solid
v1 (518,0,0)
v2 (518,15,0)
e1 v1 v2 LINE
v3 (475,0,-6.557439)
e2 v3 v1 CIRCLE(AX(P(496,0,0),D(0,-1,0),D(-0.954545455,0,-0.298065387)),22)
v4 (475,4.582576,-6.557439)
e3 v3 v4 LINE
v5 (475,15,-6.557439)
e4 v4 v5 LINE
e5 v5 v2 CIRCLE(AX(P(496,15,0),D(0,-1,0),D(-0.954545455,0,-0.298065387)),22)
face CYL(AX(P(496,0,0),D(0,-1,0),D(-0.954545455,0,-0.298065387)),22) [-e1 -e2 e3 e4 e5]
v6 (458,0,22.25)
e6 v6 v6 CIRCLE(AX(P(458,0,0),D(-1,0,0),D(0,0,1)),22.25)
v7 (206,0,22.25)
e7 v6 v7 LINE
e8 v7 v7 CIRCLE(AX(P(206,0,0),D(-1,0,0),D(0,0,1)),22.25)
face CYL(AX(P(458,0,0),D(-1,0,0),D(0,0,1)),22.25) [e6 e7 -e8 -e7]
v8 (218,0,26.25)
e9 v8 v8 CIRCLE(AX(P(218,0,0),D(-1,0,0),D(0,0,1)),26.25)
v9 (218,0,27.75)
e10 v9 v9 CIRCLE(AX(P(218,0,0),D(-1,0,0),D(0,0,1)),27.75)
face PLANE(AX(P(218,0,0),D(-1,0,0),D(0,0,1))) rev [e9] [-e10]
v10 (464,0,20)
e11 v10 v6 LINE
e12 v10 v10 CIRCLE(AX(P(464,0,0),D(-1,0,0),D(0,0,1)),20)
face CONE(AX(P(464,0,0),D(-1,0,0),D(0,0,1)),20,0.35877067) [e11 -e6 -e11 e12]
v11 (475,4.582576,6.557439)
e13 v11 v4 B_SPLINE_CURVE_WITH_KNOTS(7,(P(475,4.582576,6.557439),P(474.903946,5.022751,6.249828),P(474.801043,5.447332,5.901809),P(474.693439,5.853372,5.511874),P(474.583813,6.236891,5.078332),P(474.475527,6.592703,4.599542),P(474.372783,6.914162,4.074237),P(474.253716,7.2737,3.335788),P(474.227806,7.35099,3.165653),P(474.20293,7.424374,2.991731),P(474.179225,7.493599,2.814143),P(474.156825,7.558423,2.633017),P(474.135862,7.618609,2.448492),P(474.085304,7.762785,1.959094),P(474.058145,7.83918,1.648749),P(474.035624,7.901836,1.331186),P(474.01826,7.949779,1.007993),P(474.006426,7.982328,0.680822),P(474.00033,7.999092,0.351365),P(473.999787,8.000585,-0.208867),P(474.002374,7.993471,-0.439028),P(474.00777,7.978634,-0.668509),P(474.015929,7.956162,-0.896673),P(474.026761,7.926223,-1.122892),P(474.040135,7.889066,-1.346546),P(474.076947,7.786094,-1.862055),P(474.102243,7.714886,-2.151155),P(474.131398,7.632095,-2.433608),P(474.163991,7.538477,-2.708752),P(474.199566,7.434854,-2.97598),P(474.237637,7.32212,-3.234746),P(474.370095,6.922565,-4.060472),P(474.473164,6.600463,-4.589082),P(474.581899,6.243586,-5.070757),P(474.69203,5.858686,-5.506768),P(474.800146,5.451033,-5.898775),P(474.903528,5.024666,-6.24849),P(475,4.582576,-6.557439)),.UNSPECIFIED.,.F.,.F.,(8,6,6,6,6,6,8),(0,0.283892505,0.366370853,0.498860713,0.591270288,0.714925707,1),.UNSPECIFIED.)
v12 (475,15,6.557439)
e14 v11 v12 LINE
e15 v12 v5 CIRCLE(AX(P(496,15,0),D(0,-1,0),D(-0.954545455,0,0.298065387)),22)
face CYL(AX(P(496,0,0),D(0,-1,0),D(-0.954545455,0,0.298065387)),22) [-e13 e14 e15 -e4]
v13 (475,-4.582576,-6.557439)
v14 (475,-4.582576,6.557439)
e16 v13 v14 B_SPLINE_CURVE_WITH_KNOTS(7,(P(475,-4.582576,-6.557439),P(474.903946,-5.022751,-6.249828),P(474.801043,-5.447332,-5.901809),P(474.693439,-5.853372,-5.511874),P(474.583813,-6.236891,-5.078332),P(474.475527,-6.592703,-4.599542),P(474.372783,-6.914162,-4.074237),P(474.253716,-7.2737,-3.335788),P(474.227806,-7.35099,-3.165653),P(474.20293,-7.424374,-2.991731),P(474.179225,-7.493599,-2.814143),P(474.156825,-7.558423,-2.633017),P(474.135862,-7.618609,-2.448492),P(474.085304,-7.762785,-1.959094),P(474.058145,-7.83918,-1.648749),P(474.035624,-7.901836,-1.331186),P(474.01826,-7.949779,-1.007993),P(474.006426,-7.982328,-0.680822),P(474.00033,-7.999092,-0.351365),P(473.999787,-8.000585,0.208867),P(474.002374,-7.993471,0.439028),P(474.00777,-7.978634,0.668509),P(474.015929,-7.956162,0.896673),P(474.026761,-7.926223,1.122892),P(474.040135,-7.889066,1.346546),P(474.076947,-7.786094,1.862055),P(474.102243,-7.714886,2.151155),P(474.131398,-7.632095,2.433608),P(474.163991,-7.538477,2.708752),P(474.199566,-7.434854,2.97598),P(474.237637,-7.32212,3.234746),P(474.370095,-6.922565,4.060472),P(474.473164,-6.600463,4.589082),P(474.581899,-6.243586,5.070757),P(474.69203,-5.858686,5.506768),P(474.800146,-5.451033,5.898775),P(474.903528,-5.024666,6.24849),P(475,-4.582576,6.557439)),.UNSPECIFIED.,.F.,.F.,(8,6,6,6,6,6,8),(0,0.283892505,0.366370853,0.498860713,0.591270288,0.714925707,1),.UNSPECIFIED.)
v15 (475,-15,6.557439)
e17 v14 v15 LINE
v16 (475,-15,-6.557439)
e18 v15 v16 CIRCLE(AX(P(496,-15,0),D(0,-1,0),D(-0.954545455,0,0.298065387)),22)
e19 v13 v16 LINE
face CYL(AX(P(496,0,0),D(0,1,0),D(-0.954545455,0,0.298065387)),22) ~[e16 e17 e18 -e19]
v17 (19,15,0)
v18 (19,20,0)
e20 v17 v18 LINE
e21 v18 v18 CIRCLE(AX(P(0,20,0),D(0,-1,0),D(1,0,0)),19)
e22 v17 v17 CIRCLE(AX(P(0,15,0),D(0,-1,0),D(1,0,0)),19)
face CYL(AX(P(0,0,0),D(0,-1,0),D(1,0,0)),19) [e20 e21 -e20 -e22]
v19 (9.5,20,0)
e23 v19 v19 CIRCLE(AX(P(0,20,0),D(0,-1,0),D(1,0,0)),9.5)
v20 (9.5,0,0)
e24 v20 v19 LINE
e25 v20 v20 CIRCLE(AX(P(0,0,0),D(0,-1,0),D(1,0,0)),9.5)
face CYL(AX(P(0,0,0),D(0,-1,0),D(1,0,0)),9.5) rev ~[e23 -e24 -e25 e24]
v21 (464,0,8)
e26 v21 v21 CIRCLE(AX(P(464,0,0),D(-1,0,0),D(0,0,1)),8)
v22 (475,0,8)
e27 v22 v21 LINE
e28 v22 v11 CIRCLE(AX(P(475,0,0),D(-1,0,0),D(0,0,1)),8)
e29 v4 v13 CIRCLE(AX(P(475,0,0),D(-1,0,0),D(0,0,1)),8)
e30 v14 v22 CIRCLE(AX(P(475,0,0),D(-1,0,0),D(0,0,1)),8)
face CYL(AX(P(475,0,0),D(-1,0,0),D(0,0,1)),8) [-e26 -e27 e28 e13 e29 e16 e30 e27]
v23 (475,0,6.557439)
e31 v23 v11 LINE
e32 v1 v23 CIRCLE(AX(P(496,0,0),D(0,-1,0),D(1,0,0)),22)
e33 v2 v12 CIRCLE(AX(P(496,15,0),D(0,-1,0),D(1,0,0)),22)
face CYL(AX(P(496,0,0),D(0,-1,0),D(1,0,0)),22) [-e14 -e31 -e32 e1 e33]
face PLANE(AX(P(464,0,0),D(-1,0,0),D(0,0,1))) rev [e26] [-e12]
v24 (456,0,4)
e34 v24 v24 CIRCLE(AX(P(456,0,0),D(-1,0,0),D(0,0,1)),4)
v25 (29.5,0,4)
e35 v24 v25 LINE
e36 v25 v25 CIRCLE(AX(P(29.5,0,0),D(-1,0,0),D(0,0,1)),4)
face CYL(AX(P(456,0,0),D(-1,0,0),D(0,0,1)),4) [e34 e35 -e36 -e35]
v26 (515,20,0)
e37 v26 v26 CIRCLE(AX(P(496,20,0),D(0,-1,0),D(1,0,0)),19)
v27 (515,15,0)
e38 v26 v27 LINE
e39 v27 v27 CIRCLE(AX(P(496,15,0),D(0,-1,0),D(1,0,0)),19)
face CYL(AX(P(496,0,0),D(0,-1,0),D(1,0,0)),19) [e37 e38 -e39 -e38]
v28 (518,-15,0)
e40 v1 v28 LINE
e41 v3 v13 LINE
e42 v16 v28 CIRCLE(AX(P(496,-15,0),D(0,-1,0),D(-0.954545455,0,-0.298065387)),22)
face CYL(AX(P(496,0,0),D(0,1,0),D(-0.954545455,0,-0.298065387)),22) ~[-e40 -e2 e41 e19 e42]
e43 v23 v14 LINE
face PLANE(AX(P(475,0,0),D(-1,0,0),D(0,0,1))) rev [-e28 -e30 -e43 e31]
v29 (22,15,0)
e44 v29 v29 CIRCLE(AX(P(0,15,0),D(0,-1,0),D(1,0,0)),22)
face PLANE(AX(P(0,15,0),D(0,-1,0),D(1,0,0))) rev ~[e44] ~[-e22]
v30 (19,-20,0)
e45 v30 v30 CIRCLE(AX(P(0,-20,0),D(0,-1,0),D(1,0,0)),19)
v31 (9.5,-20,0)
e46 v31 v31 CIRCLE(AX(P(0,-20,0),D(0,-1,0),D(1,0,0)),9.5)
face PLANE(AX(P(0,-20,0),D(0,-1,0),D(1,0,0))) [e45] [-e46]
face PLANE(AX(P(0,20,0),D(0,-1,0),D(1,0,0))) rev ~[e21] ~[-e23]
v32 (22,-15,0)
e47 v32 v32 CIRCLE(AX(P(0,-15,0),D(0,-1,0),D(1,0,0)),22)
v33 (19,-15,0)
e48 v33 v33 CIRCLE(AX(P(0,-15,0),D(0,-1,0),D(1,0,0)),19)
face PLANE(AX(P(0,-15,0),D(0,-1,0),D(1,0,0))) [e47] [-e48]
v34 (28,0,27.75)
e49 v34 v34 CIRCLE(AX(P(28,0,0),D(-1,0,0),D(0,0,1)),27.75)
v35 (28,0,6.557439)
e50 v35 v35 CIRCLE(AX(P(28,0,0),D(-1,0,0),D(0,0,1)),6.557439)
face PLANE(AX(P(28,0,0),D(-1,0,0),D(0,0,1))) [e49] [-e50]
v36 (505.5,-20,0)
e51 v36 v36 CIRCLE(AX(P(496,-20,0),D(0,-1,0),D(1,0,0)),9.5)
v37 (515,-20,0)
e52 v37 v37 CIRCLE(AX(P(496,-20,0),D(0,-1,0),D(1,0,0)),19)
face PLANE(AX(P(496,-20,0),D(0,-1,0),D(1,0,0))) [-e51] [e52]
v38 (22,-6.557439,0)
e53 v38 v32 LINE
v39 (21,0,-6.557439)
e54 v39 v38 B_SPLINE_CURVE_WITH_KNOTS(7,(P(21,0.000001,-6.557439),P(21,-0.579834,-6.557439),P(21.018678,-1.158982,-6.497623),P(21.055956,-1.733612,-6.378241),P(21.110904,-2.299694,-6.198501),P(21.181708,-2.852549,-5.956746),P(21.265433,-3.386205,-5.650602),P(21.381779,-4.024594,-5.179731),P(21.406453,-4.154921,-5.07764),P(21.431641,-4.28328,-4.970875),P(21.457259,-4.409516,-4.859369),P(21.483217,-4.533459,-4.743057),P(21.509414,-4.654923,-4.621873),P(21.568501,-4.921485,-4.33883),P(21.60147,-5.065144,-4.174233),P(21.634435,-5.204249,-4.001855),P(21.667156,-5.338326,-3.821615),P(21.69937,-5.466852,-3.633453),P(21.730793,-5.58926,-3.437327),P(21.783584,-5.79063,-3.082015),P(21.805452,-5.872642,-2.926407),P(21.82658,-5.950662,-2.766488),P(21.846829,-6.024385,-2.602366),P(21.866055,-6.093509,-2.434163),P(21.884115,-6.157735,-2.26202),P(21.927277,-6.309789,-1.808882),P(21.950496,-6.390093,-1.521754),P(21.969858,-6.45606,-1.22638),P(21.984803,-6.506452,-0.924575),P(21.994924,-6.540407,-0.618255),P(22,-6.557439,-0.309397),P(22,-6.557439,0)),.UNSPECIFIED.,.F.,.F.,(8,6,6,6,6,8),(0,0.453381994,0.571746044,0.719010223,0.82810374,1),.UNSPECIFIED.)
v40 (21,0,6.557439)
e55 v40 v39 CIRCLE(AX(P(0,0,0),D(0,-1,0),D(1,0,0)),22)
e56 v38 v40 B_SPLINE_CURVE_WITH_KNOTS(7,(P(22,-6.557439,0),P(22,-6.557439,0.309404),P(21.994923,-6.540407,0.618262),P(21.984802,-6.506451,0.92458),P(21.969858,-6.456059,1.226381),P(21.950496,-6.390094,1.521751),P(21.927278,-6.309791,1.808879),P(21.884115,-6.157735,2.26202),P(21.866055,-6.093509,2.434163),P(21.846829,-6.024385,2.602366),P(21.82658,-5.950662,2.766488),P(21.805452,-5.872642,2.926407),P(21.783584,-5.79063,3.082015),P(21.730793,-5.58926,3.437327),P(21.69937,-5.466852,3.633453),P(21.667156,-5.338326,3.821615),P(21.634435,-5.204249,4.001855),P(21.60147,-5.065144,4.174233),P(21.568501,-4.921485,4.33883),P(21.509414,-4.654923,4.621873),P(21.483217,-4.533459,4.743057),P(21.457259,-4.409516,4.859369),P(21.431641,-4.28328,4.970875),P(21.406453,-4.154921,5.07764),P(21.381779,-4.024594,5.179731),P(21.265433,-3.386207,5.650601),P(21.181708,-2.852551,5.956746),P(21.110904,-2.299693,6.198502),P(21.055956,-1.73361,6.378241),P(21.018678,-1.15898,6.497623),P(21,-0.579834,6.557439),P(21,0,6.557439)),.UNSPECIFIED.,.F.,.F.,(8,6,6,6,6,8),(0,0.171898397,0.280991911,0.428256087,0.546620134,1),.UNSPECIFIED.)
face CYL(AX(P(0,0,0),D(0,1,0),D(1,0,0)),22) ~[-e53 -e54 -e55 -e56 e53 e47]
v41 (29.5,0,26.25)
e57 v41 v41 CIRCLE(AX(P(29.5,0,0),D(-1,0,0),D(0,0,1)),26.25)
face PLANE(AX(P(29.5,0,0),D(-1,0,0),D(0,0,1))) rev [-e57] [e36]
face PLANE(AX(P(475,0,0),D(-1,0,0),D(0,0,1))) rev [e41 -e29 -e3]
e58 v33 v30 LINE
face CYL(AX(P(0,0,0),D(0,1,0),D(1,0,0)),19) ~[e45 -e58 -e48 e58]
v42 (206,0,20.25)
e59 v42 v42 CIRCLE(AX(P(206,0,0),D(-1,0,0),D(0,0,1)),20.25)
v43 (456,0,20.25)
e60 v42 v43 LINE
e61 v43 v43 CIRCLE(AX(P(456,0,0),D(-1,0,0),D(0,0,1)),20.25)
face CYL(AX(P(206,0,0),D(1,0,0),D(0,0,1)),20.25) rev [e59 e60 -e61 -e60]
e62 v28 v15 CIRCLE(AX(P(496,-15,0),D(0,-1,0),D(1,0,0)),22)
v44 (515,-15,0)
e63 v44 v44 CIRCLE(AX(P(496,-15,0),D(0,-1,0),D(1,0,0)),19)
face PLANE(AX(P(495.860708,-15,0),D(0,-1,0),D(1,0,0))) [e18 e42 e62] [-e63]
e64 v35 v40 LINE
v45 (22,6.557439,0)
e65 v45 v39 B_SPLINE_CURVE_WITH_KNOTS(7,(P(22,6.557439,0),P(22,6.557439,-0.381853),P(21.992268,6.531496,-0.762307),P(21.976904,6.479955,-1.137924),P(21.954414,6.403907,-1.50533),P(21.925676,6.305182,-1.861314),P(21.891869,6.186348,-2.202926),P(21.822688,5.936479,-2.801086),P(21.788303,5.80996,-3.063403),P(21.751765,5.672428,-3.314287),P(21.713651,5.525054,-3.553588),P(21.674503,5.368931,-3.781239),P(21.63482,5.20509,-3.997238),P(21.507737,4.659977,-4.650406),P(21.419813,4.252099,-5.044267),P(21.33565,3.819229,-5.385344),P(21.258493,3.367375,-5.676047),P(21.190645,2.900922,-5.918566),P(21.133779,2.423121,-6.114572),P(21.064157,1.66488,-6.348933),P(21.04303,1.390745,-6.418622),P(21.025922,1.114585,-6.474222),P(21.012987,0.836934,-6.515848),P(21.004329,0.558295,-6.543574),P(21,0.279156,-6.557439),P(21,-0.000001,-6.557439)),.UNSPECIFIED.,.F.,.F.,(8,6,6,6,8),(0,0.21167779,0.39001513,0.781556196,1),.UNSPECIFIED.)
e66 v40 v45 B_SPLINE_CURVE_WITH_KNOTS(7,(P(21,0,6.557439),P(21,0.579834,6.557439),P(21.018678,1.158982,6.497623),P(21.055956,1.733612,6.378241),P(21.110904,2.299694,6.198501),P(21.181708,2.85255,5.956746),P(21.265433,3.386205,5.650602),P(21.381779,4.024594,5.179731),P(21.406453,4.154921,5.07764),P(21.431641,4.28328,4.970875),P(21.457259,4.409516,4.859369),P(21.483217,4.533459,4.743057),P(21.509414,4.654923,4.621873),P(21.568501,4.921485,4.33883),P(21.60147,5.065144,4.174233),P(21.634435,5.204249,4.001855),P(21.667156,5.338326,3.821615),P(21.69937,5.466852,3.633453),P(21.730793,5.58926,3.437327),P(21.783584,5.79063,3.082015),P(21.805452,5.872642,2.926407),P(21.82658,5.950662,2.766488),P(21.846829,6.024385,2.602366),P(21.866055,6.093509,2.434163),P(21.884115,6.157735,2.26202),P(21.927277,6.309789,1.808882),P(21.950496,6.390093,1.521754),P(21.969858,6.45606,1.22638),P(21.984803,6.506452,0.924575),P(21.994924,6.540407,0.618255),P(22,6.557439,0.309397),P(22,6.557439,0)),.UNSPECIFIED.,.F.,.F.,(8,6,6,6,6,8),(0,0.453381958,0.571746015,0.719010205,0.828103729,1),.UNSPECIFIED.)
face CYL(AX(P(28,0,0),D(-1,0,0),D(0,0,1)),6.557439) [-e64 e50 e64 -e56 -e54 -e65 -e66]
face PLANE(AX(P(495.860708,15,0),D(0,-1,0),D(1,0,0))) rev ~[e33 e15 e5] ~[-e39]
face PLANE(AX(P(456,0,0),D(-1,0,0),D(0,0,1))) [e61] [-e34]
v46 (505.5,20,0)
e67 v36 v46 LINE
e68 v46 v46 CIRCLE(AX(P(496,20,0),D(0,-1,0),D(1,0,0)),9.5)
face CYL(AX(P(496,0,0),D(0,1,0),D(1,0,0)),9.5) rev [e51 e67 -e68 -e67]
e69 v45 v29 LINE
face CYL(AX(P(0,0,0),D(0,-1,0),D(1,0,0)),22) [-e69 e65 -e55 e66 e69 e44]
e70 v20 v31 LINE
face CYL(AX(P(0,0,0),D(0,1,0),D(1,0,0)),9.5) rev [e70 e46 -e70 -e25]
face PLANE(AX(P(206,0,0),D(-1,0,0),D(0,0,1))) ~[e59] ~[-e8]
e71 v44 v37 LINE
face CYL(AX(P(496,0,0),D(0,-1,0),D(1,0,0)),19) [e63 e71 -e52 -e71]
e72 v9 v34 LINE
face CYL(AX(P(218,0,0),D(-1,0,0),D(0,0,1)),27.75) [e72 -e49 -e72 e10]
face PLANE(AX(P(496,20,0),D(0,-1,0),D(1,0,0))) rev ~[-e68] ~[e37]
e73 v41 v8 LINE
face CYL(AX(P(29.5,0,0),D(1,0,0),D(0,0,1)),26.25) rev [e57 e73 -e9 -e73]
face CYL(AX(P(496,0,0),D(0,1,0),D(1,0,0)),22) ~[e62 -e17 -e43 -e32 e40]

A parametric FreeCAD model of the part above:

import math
import FreeCAD as App
import Part
import Sketcher
Q = App.Units.Quantity

doc = App.newDocument("Part")
body = doc.addObject("PartDesign::Body", "Body")

# Sketch on XZ plane
sketch1 = doc.addObject("Sketcher::SketchObject", "Sketch")
body.addObject(sketch1)
sketch1.AttachmentSupport = (doc.XZ_Plane, [""])
sketch1.MapMode = "FlatFace"
sketch1.addGeometry(Part.LineSegment(App.Vector(29.5, 4, 0), App.Vector(29.5, 26.25, 0)), False)
sketch1.addGeometry(Part.LineSegment(App.Vector(29.5, 26.25, 0), App.Vector(218, 26.25, 0)), False)
sketch1.addGeometry(Part.LineSegment(App.Vector(218, 26.25, 0), App.Vector(218, 27.75, 0)), False)
sketch1.addGeometry(Part.LineSegment(App.Vector(218, 27.75, 0), App.Vector(28, 27.75, 0)), False)
sketch1.addGeometry(Part.LineSegment(App.Vector(28, 27.75, 0), App.Vector(28, 6.557439, 0)), False)
sketch1.addGeometry(Part.LineSegment(App.Vector(28, 6.557439, 0), App.Vector(21, 6.557439, 0)), False)
sketch1.addGeometry(Part.ArcOfCircle(Part.Circle(App.Vector(0, 0, 0), App.Vector(0, 0, 1), 22), math.radians(0), math.radians(17.341443)), False)
sketch1.addGeometry(Part.LineSegment(App.Vector(22, 0, 0), App.Vector(475, 0, 0)), False)
sketch1.addGeometry(Part.LineSegment(App.Vector(475, 0, 0), App.Vector(475, 8, 0)), False)
sketch1.addGeometry(Part.LineSegment(App.Vector(475, 8, 0), App.Vector(464, 8, 0)), False)
sketch1.addGeometry(Part.LineSegment(App.Vector(464, 8, 0), App.Vector(464, 20, 0)), False)
sketch1.addGeometry(Part.LineSegment(App.Vector(464, 20, 0), App.Vector(458, 22.25, 0)), False)
sketch1.addGeometry(Part.LineSegment(App.Vector(458, 22.25, 0), App.Vector(206, 22.25, 0)), False)
sketch1.addGeometry(Part.LineSegment(App.Vector(206, 22.25, 0), App.Vector(206, 20.25, 0)), False)
sketch1.addGeometry(Part.LineSegment(App.Vector(206, 20.25, 0), App.Vector(456, 20.25, 0)), False)
sketch1.addGeometry(Part.LineSegment(App.Vector(456, 20.25, 0), App.Vector(456, 4, 0)), False)
sketch1.addGeometry(Part.LineSegment(App.Vector(456, 4, 0), App.Vector(29.5, 4, 0)), False)
sketch1.addConstraint(Sketcher.Constraint("Coincident", 0, 2, 1, 1))
sketch1.addConstraint(Sketcher.Constraint("Coincident", 1, 2, 2, 1))
sketch1.addConstraint(Sketcher.Constraint("Coincident", 2, 2, 3, 1))
sketch1.addConstraint(Sketcher.Constraint("Coincident", 3, 2, 4, 1))
sketch1.addConstraint(Sketcher.Constraint("Coincident", 4, 2, 5, 1))
sketch1.addConstraint(Sketcher.Constraint("Coincident", 5, 2, 6, 2))
sketch1.addConstraint(Sketcher.Constraint("Coincident", 6, 1, 7, 1))
sketch1.addConstraint(Sketcher.Constraint("Coincident", 7, 2, 8, 1))
sketch1.addConstraint(Sketcher.Constraint("Coincident", 8, 2, 9, 1))
sketch1.addConstraint(Sketcher.Constraint("Coincident", 9, 2, 10, 1))
sketch1.addConstraint(Sketcher.Constraint("Coincident", 10, 2, 11, 1))
sketch1.addConstraint(Sketcher.Constraint("Coincident", 11, 2, 12, 1))
sketch1.addConstraint(Sketcher.Constraint("Coincident", 12, 2, 13, 1))
sketch1.addConstraint(Sketcher.Constraint("Coincident", 13, 2, 14, 1))
sketch1.addConstraint(Sketcher.Constraint("Coincident", 14, 2, 15, 1))
sketch1.addConstraint(Sketcher.Constraint("Coincident", 15, 2, 16, 1))
sketch1.addConstraint(Sketcher.Constraint("Coincident", 16, 2, 0, 1))
sketch1.addConstraint(Sketcher.Constraint("Vertical", 0))
sketch1.addConstraint(Sketcher.Constraint("Horizontal", 1))
sketch1.addConstraint(Sketcher.Constraint("Vertical", 2))
sketch1.addConstraint(Sketcher.Constraint("Horizontal", 3))
sketch1.addConstraint(Sketcher.Constraint("Vertical", 4))
sketch1.addConstraint(Sketcher.Constraint("Horizontal", 5))
sketch1.addConstraint(Sketcher.Constraint("Horizontal", 7))
sketch1.addConstraint(Sketcher.Constraint("Vertical", 8))
sketch1.addConstraint(Sketcher.Constraint("Horizontal", 9))
sketch1.addConstraint(Sketcher.Constraint("Vertical", 10))
sketch1.addConstraint(Sketcher.Constraint("Horizontal", 12))
sketch1.addConstraint(Sketcher.Constraint("Vertical", 13))
sketch1.addConstraint(Sketcher.Constraint("Horizontal", 14))
sketch1.addConstraint(Sketcher.Constraint("Vertical", 15))
sketch1.addConstraint(Sketcher.Constraint("Horizontal", 16))
sketch1.addConstraint(Sketcher.Constraint("Coincident", 6, 3, -1, 1))
sketch1.addConstraint(Sketcher.Constraint("PointOnObject", 6, 1, -1))
sketch1.addConstraint(Sketcher.Constraint("Radius", 6, Q("22 mm")))
sketch1.addConstraint(Sketcher.Constraint("DistanceX", 3, 2, 3, 1, Q("190 mm")))
sketch1.addConstraint(Sketcher.Constraint("DistanceX", 5, 2, 5, 1, Q("7 mm")))
sketch1.addConstraint(Sketcher.Constraint("DistanceX", 7, 1, 7, 2, Q("453 mm")))
sketch1.addConstraint(Sketcher.Constraint("DistanceX", 9, 2, 9, 1, Q("11 mm")))
sketch1.addConstraint(Sketcher.Constraint("DistanceX", 12, 2, 12, 1, Q("252 mm")))
sketch1.addConstraint(Sketcher.Constraint("DistanceX", 14, 1, 14, 2, Q("250 mm")))
sketch1.addConstraint(Sketcher.Constraint("DistanceY", 8, 1, 8, 2, Q("8 mm")))
sketch1.addConstraint(Sketcher.Constraint("DistanceY", 10, 1, 10, 2, Q("12 mm")))
sketch1.addConstraint(Sketcher.Constraint("DistanceY", 13, 2, 13, 1, Q("2 mm")))
sketch1.addConstraint(Sketcher.Constraint("DistanceX", 1, 1, 1, 2, Q("188.5 mm")))
sketch1.addConstraint(Sketcher.Constraint("DistanceX", 16, 2, 16, 1, Q("426.5 mm")))
sketch1.addConstraint(Sketcher.Constraint("DistanceY", 2, 1, 2, 2, Q("1.5 mm")))
sketch1.addConstraint(Sketcher.Constraint("DistanceX", -1, 1, 1, 2, Q("218 mm")))
sketch1.addConstraint(Sketcher.Constraint("DistanceY", -1, 1, 15, 2, Q("4 mm")))
sketch1.addConstraint(Sketcher.Constraint("DistanceY", 11, 2, 1, 2, Q("4 mm")))
sketch1.addConstraint(Sketcher.Constraint("DistanceY", 0, 1, 0, 2, Q("22.25 mm")))
revolution = doc.addObject("PartDesign::Revolution", "Revolution")
body.addObject(revolution)
revolution.Profile = sketch1
revolution.ReferenceAxis = (sketch1, ["H_Axis"])
revolution.Angle = 360

# Sketch on XZ plane
sketch2 = doc.addObject("Sketcher::SketchObject", "Sketch001")
body.addObject(sketch2)
sketch2.AttachmentSupport = (doc.XZ_Plane, [""])
sketch2.MapMode = "FlatFace"
sketch2.addGeometry(Part.Circle(App.Vector(0, 0, 0), App.Vector(0, 0, 1), 22), False)
sketch2.addGeometry(Part.Circle(App.Vector(0, 0, 0), App.Vector(0, 0, 1), 19), False)
sketch2.addGeometry(Part.ArcOfCircle(Part.Circle(App.Vector(496, 0, 0), App.Vector(0, 0, 1), 22), math.radians(0), math.radians(162.658557)), False)
sketch2.addGeometry(Part.ArcOfCircle(Part.Circle(App.Vector(496, 0, 0), App.Vector(0, 0, 1), 22), math.radians(162.658557), math.radians(197.341443)), False)
sketch2.addGeometry(Part.ArcOfCircle(Part.Circle(App.Vector(496, 0, 0), App.Vector(0, 0, 1), 22), math.radians(-162.658557), math.radians(0)), False)
sketch2.addGeometry(Part.Circle(App.Vector(496, 0, 0), App.Vector(0, 0, 1), 19), False)
sketch2.addConstraint(Sketcher.Constraint("Tangent", 2, 2, 3, 1))
sketch2.addConstraint(Sketcher.Constraint("Tangent", 3, 2, 4, 1))
sketch2.addConstraint(Sketcher.Constraint("Tangent", 4, 2, 2, 1))
sketch2.addConstraint(Sketcher.Constraint("Coincident", 0, 3, -1, 1))
sketch2.addConstraint(Sketcher.Constraint("Coincident", 1, 3, -1, 1))
sketch2.addConstraint(Sketcher.Constraint("Coincident", 5, 3, 2, 3))
sketch2.addConstraint(Sketcher.Constraint("Equal", 0, 2))
sketch2.addConstraint(Sketcher.Constraint("Equal", 1, 5))
sketch2.addConstraint(Sketcher.Constraint("Symmetric", 2, 2, 3, 2, -1))
sketch2.addConstraint(Sketcher.Constraint("PointOnObject", 4, 2, -1))
sketch2.addConstraint(Sketcher.Constraint("Diameter", 0, Q("44 mm")))
sketch2.addConstraint(Sketcher.Constraint("Diameter", 1, Q("38 mm")))
sketch2.addConstraint(Sketcher.Constraint("DistanceX", -1, 1, 2, 3, Q("496 mm")))
sketch2.addConstraint(Sketcher.Constraint("DistanceX", -1, 1, 2, 2, Q("475 mm")))
pad1 = doc.addObject("PartDesign::Pad", "Pad")
body.addObject(pad1)
pad1.Profile = sketch2
pad1.Length = 30
pad1.Midplane = True

# Sketch on XZ plane
sketch3 = doc.addObject("Sketcher::SketchObject", "Sketch002")
body.addObject(sketch3)
sketch3.AttachmentSupport = (doc.XZ_Plane, [""])
sketch3.MapMode = "FlatFace"
sketch3.addGeometry(Part.Circle(App.Vector(0, 0, 0), App.Vector(0, 0, 1), 19), False)
sketch3.addGeometry(Part.Circle(App.Vector(0, 0, 0), App.Vector(0, 0, 1), 9.5), False)
sketch3.addGeometry(Part.Circle(App.Vector(496, 0, 0), App.Vector(0, 0, 1), 19), False)
sketch3.addGeometry(Part.Circle(App.Vector(496, 0, 0), App.Vector(0, 0, 1), 9.5), False)
sketch3.addConstraint(Sketcher.Constraint("Coincident", 0, 3, -1, 1))
sketch3.addConstraint(Sketcher.Constraint("Coincident", 1, 3, -1, 1))
sketch3.addConstraint(Sketcher.Constraint("Coincident", 3, 3, 2, 3))
sketch3.addConstraint(Sketcher.Constraint("Equal", 0, 2))
sketch3.addConstraint(Sketcher.Constraint("Equal", 1, 3))
sketch3.addConstraint(Sketcher.Constraint("PointOnObject", 2, 3, -1))
sketch3.addConstraint(Sketcher.Constraint("Diameter", 0, Q("38 mm")))
sketch3.addConstraint(Sketcher.Constraint("Diameter", 1, Q("19 mm")))
sketch3.addConstraint(Sketcher.Constraint("DistanceX", -1, 1, 2, 3, Q("496 mm")))
pad2 = doc.addObject("PartDesign::Pad", "Pad001")
body.addObject(pad2)
pad2.Profile = sketch3
pad2.Length = 40
pad2.Midplane = True

doc.recompute()
